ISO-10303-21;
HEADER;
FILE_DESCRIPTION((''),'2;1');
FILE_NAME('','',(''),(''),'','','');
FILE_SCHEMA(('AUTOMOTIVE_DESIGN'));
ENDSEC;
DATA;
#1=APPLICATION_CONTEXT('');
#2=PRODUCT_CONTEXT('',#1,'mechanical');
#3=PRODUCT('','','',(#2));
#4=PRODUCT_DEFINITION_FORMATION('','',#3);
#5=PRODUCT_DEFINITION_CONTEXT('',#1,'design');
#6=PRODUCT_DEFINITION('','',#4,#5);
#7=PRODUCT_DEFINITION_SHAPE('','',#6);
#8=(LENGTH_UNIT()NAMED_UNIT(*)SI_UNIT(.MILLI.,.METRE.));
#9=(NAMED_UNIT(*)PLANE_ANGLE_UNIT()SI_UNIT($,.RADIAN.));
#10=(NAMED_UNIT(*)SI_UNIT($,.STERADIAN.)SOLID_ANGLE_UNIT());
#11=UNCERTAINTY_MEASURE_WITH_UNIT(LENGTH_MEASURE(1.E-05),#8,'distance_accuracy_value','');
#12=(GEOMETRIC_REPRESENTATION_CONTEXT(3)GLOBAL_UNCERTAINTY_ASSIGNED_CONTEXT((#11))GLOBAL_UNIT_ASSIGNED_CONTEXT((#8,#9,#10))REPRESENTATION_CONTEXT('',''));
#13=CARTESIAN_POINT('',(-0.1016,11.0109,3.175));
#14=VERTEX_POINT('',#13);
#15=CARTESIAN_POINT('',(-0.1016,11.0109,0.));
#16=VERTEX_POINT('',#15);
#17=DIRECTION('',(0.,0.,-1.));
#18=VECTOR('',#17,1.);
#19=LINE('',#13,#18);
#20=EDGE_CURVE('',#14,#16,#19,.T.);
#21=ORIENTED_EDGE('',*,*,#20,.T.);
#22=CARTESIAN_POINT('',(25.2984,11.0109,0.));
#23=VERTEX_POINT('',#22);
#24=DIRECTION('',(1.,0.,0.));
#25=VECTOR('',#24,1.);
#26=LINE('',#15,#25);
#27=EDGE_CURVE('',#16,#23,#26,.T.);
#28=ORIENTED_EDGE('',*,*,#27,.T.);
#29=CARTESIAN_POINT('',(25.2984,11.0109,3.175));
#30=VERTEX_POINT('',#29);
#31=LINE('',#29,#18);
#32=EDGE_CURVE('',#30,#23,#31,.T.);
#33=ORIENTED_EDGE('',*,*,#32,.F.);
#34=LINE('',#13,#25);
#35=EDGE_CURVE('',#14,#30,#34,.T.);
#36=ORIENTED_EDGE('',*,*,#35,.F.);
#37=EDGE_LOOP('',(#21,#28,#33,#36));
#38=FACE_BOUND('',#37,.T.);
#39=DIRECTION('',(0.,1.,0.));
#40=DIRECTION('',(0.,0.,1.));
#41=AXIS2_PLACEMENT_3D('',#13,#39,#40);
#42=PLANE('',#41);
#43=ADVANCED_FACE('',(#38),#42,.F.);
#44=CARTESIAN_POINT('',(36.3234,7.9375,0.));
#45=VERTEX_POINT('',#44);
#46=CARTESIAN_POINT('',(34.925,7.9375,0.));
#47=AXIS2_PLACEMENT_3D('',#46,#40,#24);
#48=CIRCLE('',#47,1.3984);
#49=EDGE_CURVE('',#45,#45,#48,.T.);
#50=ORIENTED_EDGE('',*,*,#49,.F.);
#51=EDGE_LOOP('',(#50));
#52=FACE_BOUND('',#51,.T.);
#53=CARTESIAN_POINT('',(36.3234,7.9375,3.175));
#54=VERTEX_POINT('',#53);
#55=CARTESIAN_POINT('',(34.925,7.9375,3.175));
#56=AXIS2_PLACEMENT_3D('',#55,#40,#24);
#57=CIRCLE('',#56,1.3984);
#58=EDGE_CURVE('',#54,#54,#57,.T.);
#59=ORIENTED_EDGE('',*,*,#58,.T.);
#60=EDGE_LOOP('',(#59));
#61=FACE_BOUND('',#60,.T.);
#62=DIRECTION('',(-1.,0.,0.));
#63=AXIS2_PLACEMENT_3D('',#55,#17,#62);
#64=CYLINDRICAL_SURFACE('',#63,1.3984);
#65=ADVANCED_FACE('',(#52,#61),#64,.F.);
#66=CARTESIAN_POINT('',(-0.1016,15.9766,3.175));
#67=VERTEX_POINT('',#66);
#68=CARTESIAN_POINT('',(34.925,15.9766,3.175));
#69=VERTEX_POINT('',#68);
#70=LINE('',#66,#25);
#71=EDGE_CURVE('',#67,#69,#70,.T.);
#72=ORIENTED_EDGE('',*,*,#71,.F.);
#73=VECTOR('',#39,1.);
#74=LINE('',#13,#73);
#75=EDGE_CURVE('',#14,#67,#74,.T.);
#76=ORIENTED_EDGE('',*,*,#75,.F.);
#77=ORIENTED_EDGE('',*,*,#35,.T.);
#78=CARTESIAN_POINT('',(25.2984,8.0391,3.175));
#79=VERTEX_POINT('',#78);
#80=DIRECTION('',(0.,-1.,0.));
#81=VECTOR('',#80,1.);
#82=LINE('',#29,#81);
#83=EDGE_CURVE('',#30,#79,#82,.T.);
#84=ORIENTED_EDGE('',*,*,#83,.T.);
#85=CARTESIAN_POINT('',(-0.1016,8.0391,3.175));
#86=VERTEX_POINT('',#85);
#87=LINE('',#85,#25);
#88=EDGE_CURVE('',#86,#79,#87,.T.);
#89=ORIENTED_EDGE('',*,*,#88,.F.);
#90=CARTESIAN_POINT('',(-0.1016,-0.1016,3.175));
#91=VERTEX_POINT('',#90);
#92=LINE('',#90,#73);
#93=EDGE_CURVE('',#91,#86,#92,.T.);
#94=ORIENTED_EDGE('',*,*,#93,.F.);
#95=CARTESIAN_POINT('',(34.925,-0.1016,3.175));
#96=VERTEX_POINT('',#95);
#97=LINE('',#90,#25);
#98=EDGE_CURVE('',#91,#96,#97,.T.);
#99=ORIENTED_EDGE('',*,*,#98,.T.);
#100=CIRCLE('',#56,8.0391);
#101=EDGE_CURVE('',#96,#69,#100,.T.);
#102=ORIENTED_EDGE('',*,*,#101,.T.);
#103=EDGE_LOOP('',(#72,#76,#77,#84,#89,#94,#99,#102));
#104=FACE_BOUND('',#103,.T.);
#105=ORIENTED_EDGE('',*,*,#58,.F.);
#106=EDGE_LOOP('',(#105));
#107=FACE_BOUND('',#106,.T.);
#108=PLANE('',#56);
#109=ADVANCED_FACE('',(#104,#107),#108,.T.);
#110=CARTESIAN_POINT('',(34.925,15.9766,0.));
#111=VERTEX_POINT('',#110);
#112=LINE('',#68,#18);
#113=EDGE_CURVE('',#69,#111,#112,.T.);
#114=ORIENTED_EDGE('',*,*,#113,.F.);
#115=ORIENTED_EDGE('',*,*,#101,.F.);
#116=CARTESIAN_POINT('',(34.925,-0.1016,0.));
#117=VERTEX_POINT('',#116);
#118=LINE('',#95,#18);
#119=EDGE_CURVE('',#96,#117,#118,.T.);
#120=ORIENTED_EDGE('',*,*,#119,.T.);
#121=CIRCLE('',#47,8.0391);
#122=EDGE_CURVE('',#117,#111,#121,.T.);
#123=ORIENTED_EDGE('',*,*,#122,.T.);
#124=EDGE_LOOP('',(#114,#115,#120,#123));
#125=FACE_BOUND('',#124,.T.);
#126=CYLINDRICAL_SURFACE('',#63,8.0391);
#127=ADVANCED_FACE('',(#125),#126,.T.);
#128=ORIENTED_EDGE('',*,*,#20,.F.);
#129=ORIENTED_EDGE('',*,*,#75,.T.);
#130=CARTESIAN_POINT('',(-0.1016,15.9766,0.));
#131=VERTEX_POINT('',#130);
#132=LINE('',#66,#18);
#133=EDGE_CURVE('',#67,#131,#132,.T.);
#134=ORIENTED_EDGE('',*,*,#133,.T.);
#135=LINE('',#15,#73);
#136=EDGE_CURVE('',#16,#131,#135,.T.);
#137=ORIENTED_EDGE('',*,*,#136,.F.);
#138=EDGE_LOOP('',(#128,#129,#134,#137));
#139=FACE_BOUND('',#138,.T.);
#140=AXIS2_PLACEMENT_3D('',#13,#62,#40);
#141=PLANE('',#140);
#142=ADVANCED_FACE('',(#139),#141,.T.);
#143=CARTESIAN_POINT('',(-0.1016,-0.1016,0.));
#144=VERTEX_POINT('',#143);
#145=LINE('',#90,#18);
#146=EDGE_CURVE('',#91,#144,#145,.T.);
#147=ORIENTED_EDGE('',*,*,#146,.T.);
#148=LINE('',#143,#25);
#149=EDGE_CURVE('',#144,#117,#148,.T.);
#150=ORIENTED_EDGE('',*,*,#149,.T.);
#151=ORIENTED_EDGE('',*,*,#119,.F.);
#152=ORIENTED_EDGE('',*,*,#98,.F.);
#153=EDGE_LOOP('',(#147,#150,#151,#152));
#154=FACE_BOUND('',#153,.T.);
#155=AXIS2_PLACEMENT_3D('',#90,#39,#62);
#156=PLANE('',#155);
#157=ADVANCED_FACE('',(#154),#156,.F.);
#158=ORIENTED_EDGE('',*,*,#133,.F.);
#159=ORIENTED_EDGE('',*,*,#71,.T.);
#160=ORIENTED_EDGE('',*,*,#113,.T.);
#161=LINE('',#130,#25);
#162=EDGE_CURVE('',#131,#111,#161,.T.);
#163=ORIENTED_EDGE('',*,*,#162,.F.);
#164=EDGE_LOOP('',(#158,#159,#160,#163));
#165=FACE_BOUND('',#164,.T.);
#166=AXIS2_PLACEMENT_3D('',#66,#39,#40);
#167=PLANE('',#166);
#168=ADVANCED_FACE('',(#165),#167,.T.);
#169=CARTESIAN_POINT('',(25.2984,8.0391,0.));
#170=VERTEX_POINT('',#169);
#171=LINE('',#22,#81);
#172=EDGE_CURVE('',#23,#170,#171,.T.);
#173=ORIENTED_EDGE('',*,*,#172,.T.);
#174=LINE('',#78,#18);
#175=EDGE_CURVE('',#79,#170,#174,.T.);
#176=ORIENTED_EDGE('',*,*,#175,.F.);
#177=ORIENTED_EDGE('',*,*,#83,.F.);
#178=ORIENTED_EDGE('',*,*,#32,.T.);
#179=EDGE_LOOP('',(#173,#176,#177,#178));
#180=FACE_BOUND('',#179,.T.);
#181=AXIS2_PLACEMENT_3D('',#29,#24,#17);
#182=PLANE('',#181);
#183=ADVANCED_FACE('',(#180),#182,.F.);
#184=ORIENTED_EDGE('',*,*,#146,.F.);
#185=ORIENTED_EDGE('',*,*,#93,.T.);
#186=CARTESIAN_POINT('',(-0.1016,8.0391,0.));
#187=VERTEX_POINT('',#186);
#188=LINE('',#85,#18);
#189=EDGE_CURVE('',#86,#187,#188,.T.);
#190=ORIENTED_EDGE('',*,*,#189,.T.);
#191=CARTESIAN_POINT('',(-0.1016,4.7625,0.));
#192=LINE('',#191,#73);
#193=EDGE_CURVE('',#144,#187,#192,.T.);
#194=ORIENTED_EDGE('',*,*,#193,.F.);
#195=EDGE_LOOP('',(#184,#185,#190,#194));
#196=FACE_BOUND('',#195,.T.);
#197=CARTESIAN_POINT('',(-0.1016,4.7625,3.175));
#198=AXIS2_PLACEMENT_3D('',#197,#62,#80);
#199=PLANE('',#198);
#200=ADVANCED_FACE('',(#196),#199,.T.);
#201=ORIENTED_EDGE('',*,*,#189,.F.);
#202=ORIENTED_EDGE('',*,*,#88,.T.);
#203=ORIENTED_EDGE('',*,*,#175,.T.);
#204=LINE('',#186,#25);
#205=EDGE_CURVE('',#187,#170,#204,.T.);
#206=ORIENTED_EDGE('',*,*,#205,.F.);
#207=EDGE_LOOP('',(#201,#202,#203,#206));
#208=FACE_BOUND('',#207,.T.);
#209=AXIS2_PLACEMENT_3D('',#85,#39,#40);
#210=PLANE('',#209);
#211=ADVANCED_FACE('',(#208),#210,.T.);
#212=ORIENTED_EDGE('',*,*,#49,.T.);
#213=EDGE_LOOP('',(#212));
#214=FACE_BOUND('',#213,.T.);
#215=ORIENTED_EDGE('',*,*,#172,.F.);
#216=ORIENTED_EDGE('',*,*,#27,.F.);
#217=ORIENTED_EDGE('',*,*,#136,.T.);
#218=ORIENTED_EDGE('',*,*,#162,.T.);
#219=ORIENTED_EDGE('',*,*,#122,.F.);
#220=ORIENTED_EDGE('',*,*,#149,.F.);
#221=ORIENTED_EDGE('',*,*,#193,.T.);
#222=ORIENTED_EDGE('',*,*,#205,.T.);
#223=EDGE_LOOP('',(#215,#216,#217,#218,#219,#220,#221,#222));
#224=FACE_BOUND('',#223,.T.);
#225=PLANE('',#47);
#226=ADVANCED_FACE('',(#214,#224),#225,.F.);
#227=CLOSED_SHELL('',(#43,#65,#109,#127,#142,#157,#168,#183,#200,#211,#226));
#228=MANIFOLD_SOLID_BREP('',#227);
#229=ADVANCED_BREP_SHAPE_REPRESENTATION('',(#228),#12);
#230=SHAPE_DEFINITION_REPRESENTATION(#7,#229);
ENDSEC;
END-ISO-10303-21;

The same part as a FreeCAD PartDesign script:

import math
import FreeCAD as App
import Part
import Sketcher

V = App.Vector
Q = App.Units.Quantity

doc = App.newDocument("Part")
body = doc.addObject("PartDesign::Body", "Body")

# Sketch on XY plane
sketch1 = doc.addObject("Sketcher::SketchObject", "Sketch")
body.addObject(sketch1)
sketch1.AttachmentSupport = (doc.XY_Plane, [""])
sketch1.MapMode = "FlatFace"
sketch1.addGeometry([
    Part.LineSegment(V(34.925, 15.9766, 0), V(-0.1016, 15.9766, 0)),  # 0
    Part.LineSegment(V(-0.1016, 15.9766, 0), V(-0.1016, 11.0109, 0)),  # 1
    Part.LineSegment(V(-0.1016, 11.0109, 0), V(25.2984, 11.0109, 0)),  # 2
    Part.LineSegment(V(25.2984, 11.0109, 0), V(25.2984, 8.0391, 0)),  # 3
    Part.LineSegment(V(25.2984, 8.0391, 0), V(-0.1016, 8.0391, 0)),  # 4
    Part.LineSegment(V(-0.1016, 8.0391, 0), V(-0.1016, -0.1016, 0)),  # 5
    Part.LineSegment(V(-0.1016, -0.1016, 0), V(34.925, -0.1016, 0)),  # 6
    Part.ArcOfCircle(Part.Circle(V(34.925, 7.9375, 0), V(0, 0, 1), 8.0391), math.radians(-90), math.radians(90)),  # 7
    Part.Circle(V(34.925, 7.9375, 0), V(0, 0, 1), 1.3984),  # 8
], False)
sketch1.addConstraint([
    Sketcher.Constraint("Coincident", 0, 2, 1, 1),
    Sketcher.Constraint("Coincident", 1, 2, 2, 1),
    Sketcher.Constraint("Coincident", 2, 2, 3, 1),
    Sketcher.Constraint("Coincident", 3, 2, 4, 1),
    Sketcher.Constraint("Coincident", 4, 2, 5, 1),
    Sketcher.Constraint("Coincident", 5, 2, 6, 1),
    Sketcher.Constraint("Tangent", 6, 2, 7, 1),
    Sketcher.Constraint("Tangent", 7, 2, 0, 1),
    Sketcher.Constraint("Horizontal", 0),
    Sketcher.Constraint("Vertical", 1),
    Sketcher.Constraint("Horizontal", 2),
    Sketcher.Constraint("Vertical", 3),
    Sketcher.Constraint("Horizontal", 4),
    Sketcher.Constraint("Vertical", 5),
    Sketcher.Constraint("Horizontal", 6),
    Sketcher.Constraint("Coincident", 8, 3, 7, 3),
    Sketcher.Constraint("Vertical", 1, 2, 4, 2),
    Sketcher.Constraint("DistanceX", 2, 1, 2, 2, Q("1 in")),
    Sketcher.Constraint("Radius", 7, Q("0.3165 in")),
    Sketcher.Constraint("Diameter", 8, Q("2.7968 mm")),
    Sketcher.Constraint("DistanceX", 0, 2, 0, 1, Q("1.379 in")),
    Sketcher.Constraint("DistanceY", 3, 2, 3, 1, Q("0.117 in")),
    Sketcher.Constraint("DistanceY", 1, 2, 1, 1, Q("0.1955 in")),
    Sketcher.Constraint("DistanceX", -1, 1, 7, 3, Q("1.375 in")),
    Sketcher.Constraint("DistanceY", -1, 1, 7, 3, Q("0.3125 in")),
])
pad1 = doc.addObject("PartDesign::Pad", "Pad")
body.addObject(pad1)
pad1.Profile = sketch1
pad1.Length = Q("0.125 in")

doc.recompute()
